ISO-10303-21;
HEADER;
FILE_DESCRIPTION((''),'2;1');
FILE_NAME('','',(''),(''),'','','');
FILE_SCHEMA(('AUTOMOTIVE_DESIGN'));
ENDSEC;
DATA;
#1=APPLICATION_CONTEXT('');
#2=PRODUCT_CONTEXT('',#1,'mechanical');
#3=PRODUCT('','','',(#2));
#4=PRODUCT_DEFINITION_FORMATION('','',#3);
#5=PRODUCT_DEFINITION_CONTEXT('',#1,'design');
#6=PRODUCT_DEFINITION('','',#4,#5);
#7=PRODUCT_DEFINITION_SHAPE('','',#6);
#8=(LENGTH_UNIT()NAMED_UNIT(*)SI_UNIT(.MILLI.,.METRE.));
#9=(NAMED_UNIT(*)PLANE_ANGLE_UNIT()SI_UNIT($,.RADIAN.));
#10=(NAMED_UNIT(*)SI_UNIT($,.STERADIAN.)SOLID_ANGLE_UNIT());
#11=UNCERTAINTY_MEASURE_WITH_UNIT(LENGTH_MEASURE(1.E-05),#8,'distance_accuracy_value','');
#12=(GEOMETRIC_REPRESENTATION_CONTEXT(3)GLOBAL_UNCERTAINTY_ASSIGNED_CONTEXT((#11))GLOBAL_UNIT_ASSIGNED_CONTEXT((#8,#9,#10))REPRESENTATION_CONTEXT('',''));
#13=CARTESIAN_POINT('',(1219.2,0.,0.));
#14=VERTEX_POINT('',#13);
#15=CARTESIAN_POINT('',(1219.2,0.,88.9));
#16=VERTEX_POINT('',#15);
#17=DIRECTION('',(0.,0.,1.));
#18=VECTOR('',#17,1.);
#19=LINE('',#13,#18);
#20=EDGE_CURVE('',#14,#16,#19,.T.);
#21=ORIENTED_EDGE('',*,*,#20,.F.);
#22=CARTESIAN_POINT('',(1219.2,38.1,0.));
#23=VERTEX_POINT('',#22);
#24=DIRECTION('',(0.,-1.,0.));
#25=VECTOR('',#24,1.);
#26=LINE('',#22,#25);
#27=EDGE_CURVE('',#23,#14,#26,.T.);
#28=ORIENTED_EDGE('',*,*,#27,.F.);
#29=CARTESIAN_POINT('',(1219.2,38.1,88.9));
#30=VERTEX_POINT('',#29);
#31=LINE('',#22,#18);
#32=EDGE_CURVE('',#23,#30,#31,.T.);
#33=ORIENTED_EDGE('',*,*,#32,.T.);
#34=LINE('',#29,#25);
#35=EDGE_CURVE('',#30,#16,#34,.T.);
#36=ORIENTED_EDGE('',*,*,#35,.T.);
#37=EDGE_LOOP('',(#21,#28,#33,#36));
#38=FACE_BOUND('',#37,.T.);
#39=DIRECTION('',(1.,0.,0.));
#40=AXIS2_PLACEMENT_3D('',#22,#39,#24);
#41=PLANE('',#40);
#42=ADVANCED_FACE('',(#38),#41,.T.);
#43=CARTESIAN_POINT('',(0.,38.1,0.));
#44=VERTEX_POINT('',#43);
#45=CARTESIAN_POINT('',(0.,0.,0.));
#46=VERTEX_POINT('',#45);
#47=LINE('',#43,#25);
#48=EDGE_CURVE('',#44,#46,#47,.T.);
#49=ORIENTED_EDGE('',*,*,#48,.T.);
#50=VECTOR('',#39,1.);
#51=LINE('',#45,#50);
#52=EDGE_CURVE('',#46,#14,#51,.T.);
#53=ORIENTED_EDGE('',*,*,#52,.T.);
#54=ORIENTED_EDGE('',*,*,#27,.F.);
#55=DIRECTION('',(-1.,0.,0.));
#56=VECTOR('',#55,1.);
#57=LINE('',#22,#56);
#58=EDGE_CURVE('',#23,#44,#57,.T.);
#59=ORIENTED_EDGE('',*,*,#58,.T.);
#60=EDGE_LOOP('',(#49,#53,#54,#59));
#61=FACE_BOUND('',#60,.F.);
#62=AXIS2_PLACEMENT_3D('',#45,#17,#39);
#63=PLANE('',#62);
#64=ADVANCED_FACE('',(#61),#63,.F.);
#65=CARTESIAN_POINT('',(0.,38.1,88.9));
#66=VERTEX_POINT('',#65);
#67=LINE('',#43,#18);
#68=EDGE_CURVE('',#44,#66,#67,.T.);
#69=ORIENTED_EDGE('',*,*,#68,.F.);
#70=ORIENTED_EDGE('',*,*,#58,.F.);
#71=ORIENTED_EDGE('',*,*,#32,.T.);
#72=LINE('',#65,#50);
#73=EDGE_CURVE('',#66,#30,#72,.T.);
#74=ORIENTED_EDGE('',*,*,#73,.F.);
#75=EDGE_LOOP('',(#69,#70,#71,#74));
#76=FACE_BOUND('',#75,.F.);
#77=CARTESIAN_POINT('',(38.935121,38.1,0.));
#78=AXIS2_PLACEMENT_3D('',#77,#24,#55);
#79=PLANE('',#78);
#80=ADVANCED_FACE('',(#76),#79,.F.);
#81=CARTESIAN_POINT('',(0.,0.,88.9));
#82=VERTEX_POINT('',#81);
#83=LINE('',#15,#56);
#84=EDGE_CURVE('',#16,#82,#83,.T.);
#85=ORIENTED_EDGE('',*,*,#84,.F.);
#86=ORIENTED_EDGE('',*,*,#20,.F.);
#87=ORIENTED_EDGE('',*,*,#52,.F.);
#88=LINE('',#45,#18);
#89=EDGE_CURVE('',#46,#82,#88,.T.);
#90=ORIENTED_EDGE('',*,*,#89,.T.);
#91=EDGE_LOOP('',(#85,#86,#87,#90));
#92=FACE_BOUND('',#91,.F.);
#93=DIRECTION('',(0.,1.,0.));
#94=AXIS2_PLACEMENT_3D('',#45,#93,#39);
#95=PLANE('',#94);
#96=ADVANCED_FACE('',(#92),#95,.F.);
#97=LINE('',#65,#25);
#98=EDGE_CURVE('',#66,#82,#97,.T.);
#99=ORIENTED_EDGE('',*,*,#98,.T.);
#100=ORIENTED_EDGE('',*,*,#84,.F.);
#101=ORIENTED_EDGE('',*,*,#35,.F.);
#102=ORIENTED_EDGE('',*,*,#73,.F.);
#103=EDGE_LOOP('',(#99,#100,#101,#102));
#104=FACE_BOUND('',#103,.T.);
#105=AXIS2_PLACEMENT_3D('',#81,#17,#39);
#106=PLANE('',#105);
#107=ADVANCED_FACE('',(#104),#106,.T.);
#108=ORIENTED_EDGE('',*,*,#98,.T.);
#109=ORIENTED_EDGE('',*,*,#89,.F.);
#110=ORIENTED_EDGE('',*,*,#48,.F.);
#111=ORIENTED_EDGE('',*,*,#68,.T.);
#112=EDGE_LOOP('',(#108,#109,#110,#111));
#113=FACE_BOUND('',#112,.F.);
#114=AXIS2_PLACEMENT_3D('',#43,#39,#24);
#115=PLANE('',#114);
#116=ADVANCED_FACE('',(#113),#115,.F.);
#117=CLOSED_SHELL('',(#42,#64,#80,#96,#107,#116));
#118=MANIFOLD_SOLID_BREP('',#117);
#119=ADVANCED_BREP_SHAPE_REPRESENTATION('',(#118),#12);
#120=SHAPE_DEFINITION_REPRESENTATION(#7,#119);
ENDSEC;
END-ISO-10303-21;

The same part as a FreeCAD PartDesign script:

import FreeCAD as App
import Part
import Sketcher

V = App.Vector
Q = App.Units.Quantity


def add_polygon(sketch, points):
    """Adds a closed chain of lines whose ends are joined by coincident constraints."""
    first, n = sketch.GeometryCount, len(points)
    for a, b in zip(points, points[1:] + points[:1]):
        sketch.addGeometry(Part.LineSegment(App.Vector(*a, 0), App.Vector(*b, 0)), False)
    for i in range(n):
        sketch.addConstraint(Sketcher.Constraint("Coincident", first + i, 2, first + (i + 1) % n, 1))

doc = App.newDocument("Part")
params = doc.addObject("Spreadsheet::Sheet", "Params")
for row, (alias, value) in enumerate([
    ("sketch1_width", "48 in"),
    ("sketch1_height", "1.5 in"),
    ("pad1_length", "3.5 in"),
], start=1):
    params.set(f"A{row}", alias)
    params.set(f"B{row}", "=" + value)
    params.setAlias(f"B{row}", alias)

body = doc.addObject("PartDesign::Body", "Body")

# Sketch on XY plane
sketch1 = body.newObject("Sketcher::SketchObject", "Sketch")
sketch1.AttachmentSupport = (doc.getObject("XY_Plane"), [""])
sketch1.MapMode = "FlatFace"
add_polygon(sketch1, [(0, 38), (0, 0), (1219, 0), (1219, 38)])  # lines 0-3
sketch1.addConstraint([
    Sketcher.Constraint("Vertical", 0),
    Sketcher.Constraint("Horizontal", 1),
    Sketcher.Constraint("Vertical", 2),
    Sketcher.Constraint("Horizontal", 3),
    Sketcher.Constraint("Coincident", 0, 2, -1, 1),
    Sketcher.Constraint("DistanceX", 1, 1, 1, 2, Q("48 in")),
    Sketcher.Constraint("DistanceY", 0, 2, 0, 1, Q("1.5 in")),
])
sketch1.setExpression("Constraints[9]", "Params.sketch1_width")
sketch1.setExpression("Constraints[10]", "Params.sketch1_height")
pad1 = body.newObject("PartDesign::Pad", "Pad")
pad1.Profile = sketch1
pad1.setExpression("Length", "Params.pad1_length")

doc.recompute()
